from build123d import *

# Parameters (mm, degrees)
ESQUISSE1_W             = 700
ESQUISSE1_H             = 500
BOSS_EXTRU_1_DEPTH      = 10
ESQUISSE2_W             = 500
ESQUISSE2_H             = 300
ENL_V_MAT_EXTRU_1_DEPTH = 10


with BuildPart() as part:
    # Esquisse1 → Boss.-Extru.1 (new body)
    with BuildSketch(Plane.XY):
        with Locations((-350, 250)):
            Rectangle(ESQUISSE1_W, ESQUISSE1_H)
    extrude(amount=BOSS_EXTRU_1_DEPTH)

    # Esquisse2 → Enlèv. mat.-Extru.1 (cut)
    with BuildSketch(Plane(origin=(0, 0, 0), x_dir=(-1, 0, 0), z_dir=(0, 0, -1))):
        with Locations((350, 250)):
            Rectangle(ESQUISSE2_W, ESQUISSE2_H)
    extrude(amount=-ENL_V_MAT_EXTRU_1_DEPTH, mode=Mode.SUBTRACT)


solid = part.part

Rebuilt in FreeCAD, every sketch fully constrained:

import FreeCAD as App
import Part
import Sketcher

V = App.Vector
Q = App.Units.Quantity

doc = App.newDocument("Part")
body = doc.addObject("PartDesign::Body", "Body")

# Sketch on XY plane
sketch1 = body.newObject("Sketcher::SketchObject", "Sketch")
sketch1.AttachmentSupport = (doc.getObject("XY_Plane"), [""])
sketch1.MapMode = "FlatFace"
sketch1.addGeometry(Part.LineSegment(V(-700, 500, 0), V(-700, 0, 0)), False)
sketch1.addGeometry(Part.LineSegment(V(-700, 0, 0), V(0, 0, 0)), False)
sketch1.addGeometry(Part.LineSegment(V(0, 0, 0), V(0, 500, 0)), False)
sketch1.addGeometry(Part.LineSegment(V(0, 500, 0), V(-700, 500, 0)), False)
sketch1.addConstraint(Sketcher.Constraint("Coincident", 0, 2, 1, 1))
sketch1.addConstraint(Sketcher.Constraint("Coincident", 1, 2, 2, 1))
sketch1.addConstraint(Sketcher.Constraint("Coincident", 2, 2, 3, 1))
sketch1.addConstraint(Sketcher.Constraint("Coincident", 3, 2, 0, 1))
sketch1.addConstraint(Sketcher.Constraint("Vertical", 0))
sketch1.addConstraint(Sketcher.Constraint("Horizontal", 1))
sketch1.addConstraint(Sketcher.Constraint("Vertical", 2))
sketch1.addConstraint(Sketcher.Constraint("Horizontal", 3))
sketch1.addConstraint(Sketcher.Constraint("Coincident", 1, 2, -1, 1))
sketch1.addConstraint(Sketcher.Constraint("DistanceX", 1, 1, 1, 2, Q("700 mm")))
sketch1.addConstraint(Sketcher.Constraint("DistanceY", 0, 2, 0, 1, Q("500 mm")))
pad1 = body.newObject("PartDesign::Pad", "Pad")
pad1.Profile = sketch1
pad1.Length = 10

# Sketch on XY plane
sketch2 = body.newObject("Sketcher::SketchObject", "Sketch001")
sketch2.AttachmentSupport = (doc.getObject("XY_Plane"), [""])
sketch2.MapMode = "FlatFace"
sketch2.addGeometry(Part.LineSegment(V(-100, 400, 0), V(-100, 100, 0)), False)
sketch2.addGeometry(Part.LineSegment(V(-100, 100, 0), V(-600, 100, 0)), False)
sketch2.addGeometry(Part.LineSegment(V(-600, 100, 0), V(-600, 400, 0)), False)
sketch2.addGeometry(Part.LineSegment(V(-600, 400, 0), V(-100, 400, 0)), False)
sketch2.addConstraint(Sketcher.Constraint("Coincident", 0, 2, 1, 1))
sketch2.addConstraint(Sketcher.Constraint("Coincident", 1, 2, 2, 1))
sketch2.addConstraint(Sketcher.Constraint("Coincident", 2, 2, 3, 1))
sketch2.addConstraint(Sketcher.Constraint("Coincident", 3, 2, 0, 1))
sketch2.addConstraint(Sketcher.Constraint("Vertical", 0))
sketch2.addConstraint(Sketcher.Constraint("Horizontal", 1))
sketch2.addConstraint(Sketcher.Constraint("Vertical", 2))
sketch2.addConstraint(Sketcher.Constraint("Horizontal", 3))
sketch2.addConstraint(Sketcher.Constraint("DistanceX", 1, 2, 1, 1, Q("500 mm")))
sketch2.addConstraint(Sketcher.Constraint("DistanceY", 0, 2, 0, 1, Q("300 mm")))
sketch2.addConstraint(Sketcher.Constraint("DistanceX", 0, 2, -1, 1, Q("100 mm")))
sketch2.addConstraint(Sketcher.Constraint("DistanceY", -1, 1, 0, 2, Q("100 mm")))
pocket1 = body.newObject("PartDesign::Pocket", "Pocket")
pocket1.Profile = sketch2
pocket1.Length = 10
pocket1.Reversed = True

doc.recompute()
